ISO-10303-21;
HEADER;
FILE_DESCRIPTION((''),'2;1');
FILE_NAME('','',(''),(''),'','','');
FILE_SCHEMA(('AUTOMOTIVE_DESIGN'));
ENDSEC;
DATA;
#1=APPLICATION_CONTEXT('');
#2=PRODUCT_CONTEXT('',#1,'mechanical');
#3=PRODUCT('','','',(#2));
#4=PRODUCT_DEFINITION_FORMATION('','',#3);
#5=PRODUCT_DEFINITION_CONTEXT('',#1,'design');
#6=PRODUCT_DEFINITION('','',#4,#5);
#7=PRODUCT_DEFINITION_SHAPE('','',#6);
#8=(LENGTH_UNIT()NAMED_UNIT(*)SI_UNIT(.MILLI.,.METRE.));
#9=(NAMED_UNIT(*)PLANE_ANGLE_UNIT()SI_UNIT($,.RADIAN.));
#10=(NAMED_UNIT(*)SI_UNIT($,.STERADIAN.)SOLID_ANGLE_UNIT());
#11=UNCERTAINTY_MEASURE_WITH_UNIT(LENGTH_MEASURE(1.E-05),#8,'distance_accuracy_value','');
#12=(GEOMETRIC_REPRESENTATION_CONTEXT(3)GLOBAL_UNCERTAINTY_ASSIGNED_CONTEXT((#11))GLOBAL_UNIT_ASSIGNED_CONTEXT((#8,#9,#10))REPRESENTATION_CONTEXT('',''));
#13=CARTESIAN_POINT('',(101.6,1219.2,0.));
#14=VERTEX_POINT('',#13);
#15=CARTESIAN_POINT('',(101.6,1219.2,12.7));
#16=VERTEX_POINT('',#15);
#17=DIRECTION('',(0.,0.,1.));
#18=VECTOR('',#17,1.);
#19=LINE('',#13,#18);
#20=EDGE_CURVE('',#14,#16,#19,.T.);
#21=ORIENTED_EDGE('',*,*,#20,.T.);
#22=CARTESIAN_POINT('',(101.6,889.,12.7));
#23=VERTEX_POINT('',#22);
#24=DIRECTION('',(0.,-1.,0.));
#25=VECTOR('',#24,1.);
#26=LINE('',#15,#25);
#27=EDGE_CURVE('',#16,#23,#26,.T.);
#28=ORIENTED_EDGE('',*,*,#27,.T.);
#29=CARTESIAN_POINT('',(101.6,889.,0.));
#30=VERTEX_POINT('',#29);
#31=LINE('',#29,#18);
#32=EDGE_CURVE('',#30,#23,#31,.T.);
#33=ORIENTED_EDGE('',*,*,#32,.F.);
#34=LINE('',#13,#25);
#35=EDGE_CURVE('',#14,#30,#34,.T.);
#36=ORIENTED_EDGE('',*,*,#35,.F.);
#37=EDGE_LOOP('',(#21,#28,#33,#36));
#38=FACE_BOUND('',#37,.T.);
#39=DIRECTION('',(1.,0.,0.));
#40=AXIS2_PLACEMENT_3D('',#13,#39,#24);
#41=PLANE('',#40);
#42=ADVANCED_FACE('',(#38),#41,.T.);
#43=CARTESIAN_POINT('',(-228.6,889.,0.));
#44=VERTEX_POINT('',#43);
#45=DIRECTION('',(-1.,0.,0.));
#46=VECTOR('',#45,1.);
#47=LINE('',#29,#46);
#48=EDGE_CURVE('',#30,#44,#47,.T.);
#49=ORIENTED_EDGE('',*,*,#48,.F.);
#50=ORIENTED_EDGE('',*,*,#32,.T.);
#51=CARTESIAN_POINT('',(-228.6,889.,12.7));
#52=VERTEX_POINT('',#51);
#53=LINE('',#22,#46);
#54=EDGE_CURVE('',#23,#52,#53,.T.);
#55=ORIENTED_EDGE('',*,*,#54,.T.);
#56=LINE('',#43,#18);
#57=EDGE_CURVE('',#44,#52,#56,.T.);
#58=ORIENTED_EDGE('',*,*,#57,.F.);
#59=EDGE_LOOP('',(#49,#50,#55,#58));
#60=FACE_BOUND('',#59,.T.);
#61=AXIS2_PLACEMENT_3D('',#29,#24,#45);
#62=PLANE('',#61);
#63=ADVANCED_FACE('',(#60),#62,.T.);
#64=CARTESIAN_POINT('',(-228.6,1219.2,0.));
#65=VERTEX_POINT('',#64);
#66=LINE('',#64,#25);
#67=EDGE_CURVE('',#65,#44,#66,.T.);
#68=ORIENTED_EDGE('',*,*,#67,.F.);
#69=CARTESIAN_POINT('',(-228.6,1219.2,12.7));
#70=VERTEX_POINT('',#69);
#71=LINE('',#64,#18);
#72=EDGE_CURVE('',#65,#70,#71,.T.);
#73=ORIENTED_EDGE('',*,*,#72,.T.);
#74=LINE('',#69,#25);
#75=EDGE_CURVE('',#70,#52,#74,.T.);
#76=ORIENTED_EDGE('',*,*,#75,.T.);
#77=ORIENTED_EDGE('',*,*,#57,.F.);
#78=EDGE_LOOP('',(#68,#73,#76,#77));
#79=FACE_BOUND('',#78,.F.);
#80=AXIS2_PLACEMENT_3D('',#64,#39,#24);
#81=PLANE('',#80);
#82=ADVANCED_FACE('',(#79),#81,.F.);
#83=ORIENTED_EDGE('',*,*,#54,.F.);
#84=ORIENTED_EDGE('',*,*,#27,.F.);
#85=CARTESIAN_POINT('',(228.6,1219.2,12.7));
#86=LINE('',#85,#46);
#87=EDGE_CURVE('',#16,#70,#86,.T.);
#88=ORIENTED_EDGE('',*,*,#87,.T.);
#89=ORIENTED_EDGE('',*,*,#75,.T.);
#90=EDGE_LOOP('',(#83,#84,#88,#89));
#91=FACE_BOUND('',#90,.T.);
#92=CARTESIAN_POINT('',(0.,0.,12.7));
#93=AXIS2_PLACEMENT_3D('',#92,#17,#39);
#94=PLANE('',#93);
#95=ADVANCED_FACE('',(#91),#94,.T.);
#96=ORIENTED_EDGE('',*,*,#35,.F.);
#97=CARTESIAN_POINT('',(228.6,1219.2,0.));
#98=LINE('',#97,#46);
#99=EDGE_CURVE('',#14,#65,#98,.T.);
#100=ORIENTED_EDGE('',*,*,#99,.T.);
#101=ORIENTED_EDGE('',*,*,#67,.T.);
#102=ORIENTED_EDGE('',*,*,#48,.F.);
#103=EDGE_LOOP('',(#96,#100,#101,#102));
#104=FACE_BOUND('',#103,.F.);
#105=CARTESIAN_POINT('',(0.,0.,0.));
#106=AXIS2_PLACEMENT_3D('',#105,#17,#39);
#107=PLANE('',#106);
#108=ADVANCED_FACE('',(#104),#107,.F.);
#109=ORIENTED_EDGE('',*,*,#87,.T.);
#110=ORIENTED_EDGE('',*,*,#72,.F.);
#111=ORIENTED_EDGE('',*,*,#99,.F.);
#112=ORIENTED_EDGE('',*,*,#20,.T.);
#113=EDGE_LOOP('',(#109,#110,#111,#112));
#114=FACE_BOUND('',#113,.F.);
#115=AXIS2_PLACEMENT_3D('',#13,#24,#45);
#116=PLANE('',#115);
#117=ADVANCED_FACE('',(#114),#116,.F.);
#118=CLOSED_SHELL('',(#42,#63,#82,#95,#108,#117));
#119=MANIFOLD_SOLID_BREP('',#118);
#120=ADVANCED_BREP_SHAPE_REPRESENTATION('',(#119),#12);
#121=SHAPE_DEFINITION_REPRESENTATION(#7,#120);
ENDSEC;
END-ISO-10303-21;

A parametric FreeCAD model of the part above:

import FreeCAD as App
import Part
import Sketcher
from FreeCAD import Vector
Q = App.Units.Quantity

doc = App.newDocument("Part")
params = doc.addObject("Spreadsheet::Sheet", "Params")
for row, (alias, value) in enumerate([
    ("sketch1_width", "13 in"),
    ("pad1_length", "0.5 in"),
], start=1):
    params.set(f"A{row}", alias)
    params.set(f"B{row}", "=" + value)
    params.setAlias(f"B{row}", alias)

body = doc.addObject("PartDesign::Body", "Body")

# Sketch on XY plane
sketch1 = body.newObject("Sketcher::SketchObject", "Sketch")
sketch1.AttachmentSupport = (doc.getObject("XY_Plane"), [""])
sketch1.MapMode = "FlatFace"
sketch1.addGeometry(Part.LineSegment(Vector(101.6, 889, 0), Vector(101.6, 1219.2, 0)), False)
sketch1.addGeometry(Part.LineSegment(Vector(101.6, 1219.2, 0), Vector(-228.6, 1219.2, 0)), False)
sketch1.addGeometry(Part.LineSegment(Vector(-228.6, 1219.2, 0), Vector(-228.6, 889, 0)), False)
sketch1.addGeometry(Part.LineSegment(Vector(-228.6, 889, 0), Vector(101.6, 889, 0)), False)
sketch1.addConstraint(Sketcher.Constraint("Coincident", 0, 2, 1, 1))
sketch1.addConstraint(Sketcher.Constraint("Coincident", 1, 2, 2, 1))
sketch1.addConstraint(Sketcher.Constraint("Coincident", 2, 2, 3, 1))
sketch1.addConstraint(Sketcher.Constraint("Coincident", 3, 2, 0, 1))
sketch1.addConstraint(Sketcher.Constraint("Vertical", 0))
sketch1.addConstraint(Sketcher.Constraint("Horizontal", 1))
sketch1.addConstraint(Sketcher.Constraint("Vertical", 2))
sketch1.addConstraint(Sketcher.Constraint("Horizontal", 3))
sketch1.addConstraint(Sketcher.Constraint("Equal", 3, 0))
sketch1.addConstraint(Sketcher.Constraint("DistanceX", 1, 2, 1, 1, Q("13 in")))
sketch1.addConstraint(Sketcher.Constraint("DistanceX", -1, 1, 0, 2, Q("4 in")))
sketch1.addConstraint(Sketcher.Constraint("DistanceY", -1, 1, 0, 2, Q("48 in")))
sketch1.setExpression("Constraints[9]", "Params.sketch1_width")
pad1 = body.newObject("PartDesign::Pad", "Pad")
pad1.Profile = sketch1
pad1.setExpression("Length", "Params.pad1_length")

doc.recompute()
